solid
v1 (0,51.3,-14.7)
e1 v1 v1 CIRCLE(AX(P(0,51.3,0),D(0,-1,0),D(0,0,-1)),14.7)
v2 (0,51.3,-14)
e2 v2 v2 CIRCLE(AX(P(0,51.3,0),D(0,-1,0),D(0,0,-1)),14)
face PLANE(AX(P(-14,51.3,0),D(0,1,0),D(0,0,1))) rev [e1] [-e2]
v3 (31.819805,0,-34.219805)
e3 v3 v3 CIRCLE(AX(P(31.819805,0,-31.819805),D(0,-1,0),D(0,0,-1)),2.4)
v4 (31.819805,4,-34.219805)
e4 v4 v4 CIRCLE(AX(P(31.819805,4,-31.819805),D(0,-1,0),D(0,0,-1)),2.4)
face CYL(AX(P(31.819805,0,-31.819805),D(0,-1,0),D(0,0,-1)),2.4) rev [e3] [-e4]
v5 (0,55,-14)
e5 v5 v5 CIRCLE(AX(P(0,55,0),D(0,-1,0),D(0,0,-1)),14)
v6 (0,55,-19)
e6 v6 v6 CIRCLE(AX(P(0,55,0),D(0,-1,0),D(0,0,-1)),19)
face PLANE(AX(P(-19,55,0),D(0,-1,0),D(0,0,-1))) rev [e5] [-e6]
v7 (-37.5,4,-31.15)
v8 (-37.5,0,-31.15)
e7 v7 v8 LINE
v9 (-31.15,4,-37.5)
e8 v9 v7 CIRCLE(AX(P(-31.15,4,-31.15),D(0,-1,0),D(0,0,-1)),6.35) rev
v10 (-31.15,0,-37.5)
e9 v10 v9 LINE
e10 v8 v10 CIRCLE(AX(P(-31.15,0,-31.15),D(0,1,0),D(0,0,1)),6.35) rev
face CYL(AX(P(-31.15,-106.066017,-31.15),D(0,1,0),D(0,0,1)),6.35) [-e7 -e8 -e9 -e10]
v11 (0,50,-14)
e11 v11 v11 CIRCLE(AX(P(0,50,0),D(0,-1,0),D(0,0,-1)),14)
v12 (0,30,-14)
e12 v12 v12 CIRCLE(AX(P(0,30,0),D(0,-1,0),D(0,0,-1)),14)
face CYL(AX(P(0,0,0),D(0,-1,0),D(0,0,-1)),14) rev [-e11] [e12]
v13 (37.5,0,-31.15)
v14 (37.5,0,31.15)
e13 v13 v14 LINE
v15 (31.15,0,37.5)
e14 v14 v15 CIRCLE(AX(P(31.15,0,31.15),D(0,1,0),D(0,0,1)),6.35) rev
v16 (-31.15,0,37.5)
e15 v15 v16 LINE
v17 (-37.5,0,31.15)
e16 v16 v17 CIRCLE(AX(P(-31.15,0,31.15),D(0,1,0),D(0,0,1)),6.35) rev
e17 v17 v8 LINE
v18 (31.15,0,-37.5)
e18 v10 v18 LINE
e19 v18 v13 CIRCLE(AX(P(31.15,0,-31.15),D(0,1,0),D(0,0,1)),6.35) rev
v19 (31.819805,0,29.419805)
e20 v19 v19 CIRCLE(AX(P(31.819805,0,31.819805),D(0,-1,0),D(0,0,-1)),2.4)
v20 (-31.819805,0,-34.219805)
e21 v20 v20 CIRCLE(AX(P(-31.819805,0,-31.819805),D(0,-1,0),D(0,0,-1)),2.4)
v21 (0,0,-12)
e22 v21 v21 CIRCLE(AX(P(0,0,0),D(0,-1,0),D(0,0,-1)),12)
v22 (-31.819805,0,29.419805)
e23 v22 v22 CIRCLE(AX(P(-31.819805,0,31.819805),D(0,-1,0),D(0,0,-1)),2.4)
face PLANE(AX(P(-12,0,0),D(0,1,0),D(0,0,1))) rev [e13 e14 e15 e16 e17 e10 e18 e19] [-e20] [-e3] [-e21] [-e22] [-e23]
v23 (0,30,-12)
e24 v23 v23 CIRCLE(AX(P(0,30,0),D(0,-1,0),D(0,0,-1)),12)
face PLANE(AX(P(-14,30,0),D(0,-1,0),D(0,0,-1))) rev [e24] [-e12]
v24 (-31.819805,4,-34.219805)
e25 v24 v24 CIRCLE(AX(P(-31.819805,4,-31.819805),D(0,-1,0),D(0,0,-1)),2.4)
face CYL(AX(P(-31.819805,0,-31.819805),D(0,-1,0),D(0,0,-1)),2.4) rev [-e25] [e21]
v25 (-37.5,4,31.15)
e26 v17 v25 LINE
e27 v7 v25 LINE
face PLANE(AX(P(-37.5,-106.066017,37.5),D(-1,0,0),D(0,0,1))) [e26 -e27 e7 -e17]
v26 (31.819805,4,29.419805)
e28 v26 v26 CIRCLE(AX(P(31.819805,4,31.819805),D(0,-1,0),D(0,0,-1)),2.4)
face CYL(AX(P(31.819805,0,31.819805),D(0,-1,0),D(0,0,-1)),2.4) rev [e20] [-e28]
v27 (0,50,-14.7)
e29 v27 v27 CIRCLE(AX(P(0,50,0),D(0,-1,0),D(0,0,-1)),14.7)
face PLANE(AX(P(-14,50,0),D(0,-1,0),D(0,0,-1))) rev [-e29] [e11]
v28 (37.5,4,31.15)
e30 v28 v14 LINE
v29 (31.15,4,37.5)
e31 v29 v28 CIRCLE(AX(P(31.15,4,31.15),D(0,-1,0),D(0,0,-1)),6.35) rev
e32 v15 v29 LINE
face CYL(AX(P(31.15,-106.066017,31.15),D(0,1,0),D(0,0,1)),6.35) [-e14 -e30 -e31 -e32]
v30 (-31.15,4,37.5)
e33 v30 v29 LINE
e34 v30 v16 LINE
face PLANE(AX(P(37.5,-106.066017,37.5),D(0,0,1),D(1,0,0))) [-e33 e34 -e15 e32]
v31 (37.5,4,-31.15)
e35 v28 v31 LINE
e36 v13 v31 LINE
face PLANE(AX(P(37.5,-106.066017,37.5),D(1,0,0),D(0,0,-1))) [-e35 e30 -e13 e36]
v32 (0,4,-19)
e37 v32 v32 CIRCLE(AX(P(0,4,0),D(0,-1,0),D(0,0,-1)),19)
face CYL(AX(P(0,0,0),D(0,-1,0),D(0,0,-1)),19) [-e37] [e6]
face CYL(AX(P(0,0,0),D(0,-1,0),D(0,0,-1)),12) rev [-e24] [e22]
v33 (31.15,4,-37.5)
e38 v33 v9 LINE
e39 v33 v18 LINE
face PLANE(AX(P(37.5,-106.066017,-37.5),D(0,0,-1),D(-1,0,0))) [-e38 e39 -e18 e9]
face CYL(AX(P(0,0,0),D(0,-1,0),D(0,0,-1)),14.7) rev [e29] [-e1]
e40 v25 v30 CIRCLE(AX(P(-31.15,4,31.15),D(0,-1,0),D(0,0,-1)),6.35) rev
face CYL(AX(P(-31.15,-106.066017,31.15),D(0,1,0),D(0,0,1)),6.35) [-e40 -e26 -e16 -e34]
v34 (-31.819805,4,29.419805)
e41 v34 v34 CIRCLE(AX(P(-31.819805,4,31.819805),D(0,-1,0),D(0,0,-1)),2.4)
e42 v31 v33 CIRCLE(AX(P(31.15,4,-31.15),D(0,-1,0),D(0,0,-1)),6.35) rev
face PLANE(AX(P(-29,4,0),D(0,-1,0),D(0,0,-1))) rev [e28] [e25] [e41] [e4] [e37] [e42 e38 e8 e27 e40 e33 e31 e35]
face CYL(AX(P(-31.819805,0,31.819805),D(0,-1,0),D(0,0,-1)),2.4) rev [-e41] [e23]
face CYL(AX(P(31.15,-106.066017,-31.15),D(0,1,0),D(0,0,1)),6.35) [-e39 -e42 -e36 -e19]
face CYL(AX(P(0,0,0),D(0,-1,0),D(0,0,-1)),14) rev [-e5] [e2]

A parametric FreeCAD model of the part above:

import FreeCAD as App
import Part
import Sketcher

V = App.Vector
Q = App.Units.Quantity


def edges_at(feature, points):
    """Names of the edges that pass closest to the given points."""
    edges = feature.Shape.Edges
    near = lambda p: min(range(len(edges)), key=lambda i: edges[i].distToShape(Part.Vertex(*p))[0])
    return sorted({f"Edge{near(p) + 1}" for p in points})


def add_polygon(sketch, points):
    """Adds a closed chain of lines whose ends are joined by coincident constraints."""
    first, n = sketch.GeometryCount, len(points)
    for a, b in zip(points, points[1:] + points[:1]):
        sketch.addGeometry(Part.LineSegment(App.Vector(*a, 0), App.Vector(*b, 0)), False)
    for i in range(n):
        sketch.addConstraint(Sketcher.Constraint("Coincident", first + i, 2, first + (i + 1) % n, 1))

doc = App.newDocument("Part")
body = doc.addObject("PartDesign::Body", "Body")

# Sketch on XY plane
sketch1 = body.newObject("Sketcher::SketchObject", "Sketch")
sketch1.AttachmentSupport = (doc.getObject("XY_Plane"), [""])
sketch1.MapMode = "FlatFace"
add_polygon(sketch1, [(-29, 0), (-12, 0), (-12, 30), (-14, 30), (-14, 50), (-14.7, 50), (-14.7, 51.3), (-14, 51.3), (-14, 55), (-19, 55), (-19, 4), (-29, 4)])  # lines 0-11
sketch1.addConstraint([
    Sketcher.Constraint("Horizontal", 0),
    Sketcher.Constraint("Vertical", 1),
    Sketcher.Constraint("Horizontal", 2),
    Sketcher.Constraint("Vertical", 3),
    Sketcher.Constraint("Horizontal", 4),
    Sketcher.Constraint("Vertical", 5),
    Sketcher.Constraint("Horizontal", 6),
    Sketcher.Constraint("Vertical", 7),
    Sketcher.Constraint("Horizontal", 8),
    Sketcher.Constraint("Vertical", 9),
    Sketcher.Constraint("Horizontal", 10),
    Sketcher.Constraint("Vertical", 11),
    Sketcher.Constraint("PointOnObject", 0, 2, -1),
    Sketcher.Constraint("Vertical", 3, 2, 6, 2),
    Sketcher.Constraint("DistanceX", 0, 1, 0, 2, Q("17 mm")),
    Sketcher.Constraint("DistanceX", 2, 2, 2, 1, Q("2 mm")),
    Sketcher.Constraint("DistanceX", 8, 2, 8, 1, Q("5 mm")),
    Sketcher.Constraint("DistanceY", 1, 1, 1, 2, Q("30 mm")),
    Sketcher.Constraint("DistanceY", 3, 1, 3, 2, Q("20 mm")),
    Sketcher.Constraint("DistanceY", 9, 2, 9, 1, Q("51 mm")),
    Sketcher.Constraint("DistanceY", 11, 2, 11, 1, Q("4 mm")),
    Sketcher.Constraint("DistanceX", 4, 2, 4, 1, Q("0.7 mm")),
    Sketcher.Constraint("DistanceY", 5, 1, 5, 2, Q("1.3 mm")),
    Sketcher.Constraint("DistanceX", 0, 2, -1, 1, Q("12 mm")),
])
revolution = body.newObject("PartDesign::Revolution", "Revolution")
revolution.Profile = sketch1
revolution.ReferenceAxis = (sketch1, ["V_Axis"])
revolution.Angle = 360

# Sketch on XZ plane
sketch2 = body.newObject("Sketcher::SketchObject", "Sketch001")
sketch2.AttachmentSupport = (doc.getObject("XZ_Plane"), [""])
sketch2.MapMode = "FlatFace"
sketch2.AttachmentOffset = App.Placement(V(0, 0, -4), App.Rotation())
add_polygon(sketch2, [(-38, -38), (-38, 38), (38, 38), (38, -38)])  # lines 0-3
sketch2.addGeometry(Part.Circle(V(0, 0, 0), V(0, 0, 1), 21), False)  # 4
sketch2.addConstraint([
    Sketcher.Constraint("Vertical", 0),
    Sketcher.Constraint("Horizontal", 1),
    Sketcher.Constraint("Vertical", 2),
    Sketcher.Constraint("Horizontal", 3),
    Sketcher.Constraint("Coincident", 4, 3, -1, 1),
    Sketcher.Constraint("Symmetric", 0, 2, 2, 2, -1, 1),
    Sketcher.Constraint("Equal", 3, 0),
    Sketcher.Constraint("Diameter", 4, Q("42 mm")),
    Sketcher.Constraint("DistanceX", 1, 1, 1, 2, Q("75 mm")),
])
pad1 = body.newObject("PartDesign::Pad", "Pad")
pad1.Profile = sketch2
pad1.Length = 4

# Sketch on XZ plane
sketch3 = body.newObject("Sketcher::SketchObject", "Sketch002")
sketch3.AttachmentSupport = (doc.getObject("XZ_Plane"), [""])
sketch3.MapMode = "FlatFace"
sketch3.addGeometry([
    Part.Circle(V(0, 0, 0), V(0, 0, 1), 2.4),  # 0
    Part.Circle(V(31.8, -31.8, 0), V(0, 0, 1), 2.4),  # 1
    Part.Circle(V(-31.8, -31.8, 0), V(0, 0, 1), 2.4),  # 2
    Part.Circle(V(-31.8, 31.8, 0), V(0, 0, 1), 2.4),  # 3
    Part.Circle(V(31.8, 31.8, 0), V(0, 0, 1), 2.4),  # 4
], False)
sketch3.addConstraint([
    Sketcher.Constraint("Coincident", 0, 3, -1, 1),
    Sketcher.Constraint("Equal", 0, 1),
    Sketcher.Constraint("Equal", 1, 2),
    Sketcher.Constraint("Equal", 2, 3),
    Sketcher.Constraint("Equal", 3, 4),
    Sketcher.Constraint("Symmetric", 1, 3, 3, 3, -1, 1),
    Sketcher.Constraint("Symmetric", 2, 3, 4, 3, -1, 1),
    Sketcher.Constraint("Symmetric", 1, 3, 2, 3, -2),
    Sketcher.Constraint("Diameter", 0, Q("4.8 mm")),
    Sketcher.Constraint("DistanceX", 2, 3, 1, 3, Q("63.63961 mm")),
    Sketcher.Constraint("DistanceY", 2, 3, 3, 3, Q("63.63961 mm")),
])
doc.recompute()
hole = body.newObject("PartDesign::Hole", "Hole")
hole.Profile = sketch3
hole.ThreadType = "None"
hole.Diameter = 4.8
hole.DepthType = "Dimension"
hole.Depth = 55
hole.DrillPoint = "Flat"
doc.recompute()

fillet = body.newObject("PartDesign::Fillet", "Fillet")
fillet.Base = (hole, edges_at(hole, [
    (37.5, 2, 37.5),
    (37.5, 2, -37.5),
    (-37.5, 2, -37.5),
    (-37.5, 2, 37.5),
]))
fillet.Radius = 6.35

doc.recompute()
